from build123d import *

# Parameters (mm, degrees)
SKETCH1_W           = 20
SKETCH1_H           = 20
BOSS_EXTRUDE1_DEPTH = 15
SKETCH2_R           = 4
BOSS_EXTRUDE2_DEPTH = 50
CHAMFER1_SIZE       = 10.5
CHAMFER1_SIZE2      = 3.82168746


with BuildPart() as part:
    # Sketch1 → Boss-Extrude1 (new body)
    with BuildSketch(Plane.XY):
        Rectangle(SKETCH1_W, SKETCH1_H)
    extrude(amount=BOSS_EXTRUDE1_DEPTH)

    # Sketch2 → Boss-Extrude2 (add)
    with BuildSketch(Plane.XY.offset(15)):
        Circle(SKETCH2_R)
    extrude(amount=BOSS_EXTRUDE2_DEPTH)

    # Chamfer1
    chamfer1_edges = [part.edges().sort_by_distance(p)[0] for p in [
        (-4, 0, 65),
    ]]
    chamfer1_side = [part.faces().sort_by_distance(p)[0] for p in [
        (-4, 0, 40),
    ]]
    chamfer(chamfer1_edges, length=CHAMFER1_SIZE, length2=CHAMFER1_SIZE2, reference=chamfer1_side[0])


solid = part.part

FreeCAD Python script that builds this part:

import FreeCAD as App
import Part
import Sketcher
Q = App.Units.Quantity


def edges_at(feature, points):
    """Names of the edges that pass closest to the given points."""
    edges = feature.Shape.Edges
    near = lambda p: min(range(len(edges)), key=lambda i: edges[i].distToShape(Part.Vertex(*p))[0])
    return sorted({f"Edge{near(p) + 1}" for p in points})

doc = App.newDocument("Part")
body = doc.addObject("PartDesign::Body", "Body")

# Sketch on XY plane
sketch1 = doc.addObject("Sketcher::SketchObject", "Sketch")
body.addObject(sketch1)
sketch1.AttachmentSupport = (doc.XY_Plane, [""])
sketch1.MapMode = "FlatFace"
sketch1.addGeometry(Part.LineSegment(App.Vector(-10, 10, 0), App.Vector(-10, -10, 0)), False)
sketch1.addGeometry(Part.LineSegment(App.Vector(-10, -10, 0), App.Vector(10, -10, 0)), False)
sketch1.addGeometry(Part.LineSegment(App.Vector(10, -10, 0), App.Vector(10, 10, 0)), False)
sketch1.addGeometry(Part.LineSegment(App.Vector(10, 10, 0), App.Vector(-10, 10, 0)), False)
sketch1.addConstraint(Sketcher.Constraint("Coincident", 0, 2, 1, 1))
sketch1.addConstraint(Sketcher.Constraint("Coincident", 1, 2, 2, 1))
sketch1.addConstraint(Sketcher.Constraint("Coincident", 2, 2, 3, 1))
sketch1.addConstraint(Sketcher.Constraint("Coincident", 3, 2, 0, 1))
sketch1.addConstraint(Sketcher.Constraint("Vertical", 0))
sketch1.addConstraint(Sketcher.Constraint("Horizontal", 1))
sketch1.addConstraint(Sketcher.Constraint("Vertical", 2))
sketch1.addConstraint(Sketcher.Constraint("Horizontal", 3))
sketch1.addConstraint(Sketcher.Constraint("Symmetric", 0, 2, 2, 2, -1, 1))
sketch1.addConstraint(Sketcher.Constraint("Equal", 3, 0))
sketch1.addConstraint(Sketcher.Constraint("DistanceX", 1, 1, 1, 2, Q("20 mm")))
pad1 = doc.addObject("PartDesign::Pad", "Pad")
body.addObject(pad1)
pad1.Profile = sketch1
pad1.Length = 15

# Sketch on XY plane
sketch2 = doc.addObject("Sketcher::SketchObject", "Sketch001")
body.addObject(sketch2)
sketch2.AttachmentSupport = (doc.XY_Plane, [""])
sketch2.MapMode = "FlatFace"
sketch2.AttachmentOffset = App.Placement(App.Vector(0, 0, 15), App.Rotation())
sketch2.addGeometry(Part.Circle(App.Vector(0, 0, 0), App.Vector(0, 0, 1), 4), False)
sketch2.addConstraint(Sketcher.Constraint("Coincident", 0, 3, -1, 1))
sketch2.addConstraint(Sketcher.Constraint("Diameter", 0, Q("8 mm")))
pad2 = doc.addObject("PartDesign::Pad", "Pad001")
body.addObject(pad2)
pad2.Profile = sketch2
pad2.Length = 50
doc.recompute()

chamfer = doc.addObject("PartDesign::Chamfer", "Chamfer")
body.addObject(chamfer)
chamfer.Base = (pad2, edges_at(pad2, [(-4, 0, 65)]))
chamfer.ChamferType = "Two distances"
chamfer.Size = 10.5
chamfer.Size2 = 3.821687

doc.recompute()
